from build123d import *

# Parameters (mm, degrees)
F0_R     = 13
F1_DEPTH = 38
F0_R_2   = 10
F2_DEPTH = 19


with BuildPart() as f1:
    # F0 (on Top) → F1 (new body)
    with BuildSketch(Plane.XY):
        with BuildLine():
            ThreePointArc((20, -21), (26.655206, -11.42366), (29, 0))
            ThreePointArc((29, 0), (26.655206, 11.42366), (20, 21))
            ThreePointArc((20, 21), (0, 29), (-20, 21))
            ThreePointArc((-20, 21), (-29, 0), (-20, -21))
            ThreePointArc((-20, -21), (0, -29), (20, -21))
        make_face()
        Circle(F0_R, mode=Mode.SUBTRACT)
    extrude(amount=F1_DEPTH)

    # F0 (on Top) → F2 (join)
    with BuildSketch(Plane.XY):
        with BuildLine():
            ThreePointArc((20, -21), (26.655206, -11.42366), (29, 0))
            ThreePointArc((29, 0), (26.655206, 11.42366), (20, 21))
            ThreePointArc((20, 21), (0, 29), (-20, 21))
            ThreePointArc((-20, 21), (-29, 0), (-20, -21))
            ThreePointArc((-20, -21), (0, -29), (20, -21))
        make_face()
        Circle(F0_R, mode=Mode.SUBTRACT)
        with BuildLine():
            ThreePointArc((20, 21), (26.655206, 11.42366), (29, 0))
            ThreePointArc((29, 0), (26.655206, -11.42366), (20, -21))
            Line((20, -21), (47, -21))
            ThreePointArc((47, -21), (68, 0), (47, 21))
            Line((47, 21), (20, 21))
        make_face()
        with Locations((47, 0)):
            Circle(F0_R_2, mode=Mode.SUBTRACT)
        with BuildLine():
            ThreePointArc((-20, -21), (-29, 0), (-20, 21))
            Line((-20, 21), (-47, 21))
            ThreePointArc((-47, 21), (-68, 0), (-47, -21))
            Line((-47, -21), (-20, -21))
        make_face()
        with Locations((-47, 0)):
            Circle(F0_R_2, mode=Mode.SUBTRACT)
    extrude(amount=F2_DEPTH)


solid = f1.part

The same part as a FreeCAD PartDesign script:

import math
import FreeCAD as App
import Part
import Sketcher

V = App.Vector

doc = App.newDocument("Part")
body = doc.addObject("PartDesign::Body", "Body")

sketch1 = doc.addObject("Sketcher::SketchObject", "Sketch")
body.addObject(sketch1)
sketch1.AttachmentSupport = (doc.XY_Plane, [""])
sketch1.MapMode = "FlatFace"
sketch1.addGeometry(Part.ArcOfCircle(Part.Circle(V(0, 0, 0), V(0, 0, 1), 29), math.radians(-46), math.radians(0)), False)
sketch1.addGeometry(Part.ArcOfCircle(Part.Circle(V(0, 0, 0), V(0, 0, 1), 29), math.radians(0), math.radians(46)), False)
sketch1.addGeometry(Part.ArcOfCircle(Part.Circle(V(0, 0, 0), V(0, 0, 1), 29), math.radians(46), math.radians(314)), False)
sketch1.addGeometry(Part.Circle(V(0, 0, 0), V(0, 0, 1), 13), False)
sketch1.addConstraint(Sketcher.Constraint("Tangent", 0, 2, 1, 1))
sketch1.addConstraint(Sketcher.Constraint("Tangent", 1, 2, 2, 1))
sketch1.addConstraint(Sketcher.Constraint("Tangent", 2, 2, 0, 1))
sketch1.addConstraint(Sketcher.Constraint("Coincident", 0, 3, -1, 1))
sketch1.addConstraint(Sketcher.Constraint("Coincident", 3, 3, -1, 1))
sketch1.addConstraint(Sketcher.Constraint("PointOnObject", 0, 2, -1))
sketch1.addConstraint(Sketcher.Constraint("Vertical", 1, 2, 2, 2))
sketch1.addConstraint(Sketcher.Constraint("Diameter", 3, 26.0))
sketch1.addConstraint(Sketcher.Constraint("Radius", 2, 29.0))
sketch1.addConstraint(Sketcher.Constraint("DistanceX", -1, 1, 1, 2, 20.0))
pad1 = doc.addObject("PartDesign::Pad", "Pad")
body.addObject(pad1)
pad1.Profile = sketch1
pad1.Length = 38

sketch2 = doc.addObject("Sketcher::SketchObject", "Sketch001")
body.addObject(sketch2)
sketch2.AttachmentSupport = (doc.XY_Plane, [""])
sketch2.MapMode = "FlatFace"
sketch2.addGeometry(Part.ArcOfCircle(Part.Circle(V(0, 0, 0), V(0, 0, 1), 29), math.radians(46), math.radians(134)), False)
sketch2.addGeometry(Part.LineSegment(V(-20, 21, 0), V(-47, 21, 0)), False)
sketch2.addGeometry(Part.ArcOfCircle(Part.Circle(V(-47, 0, 0), V(0, 0, 1), 21), math.radians(90), math.radians(270)), False)
sketch2.addGeometry(Part.LineSegment(V(-47, -21, 0), V(-20, -21, 0)), False)
sketch2.addGeometry(Part.ArcOfCircle(Part.Circle(V(0, 0, 0), V(0, 0, 1), 29), math.radians(-134), math.radians(-46)), False)
sketch2.addGeometry(Part.LineSegment(V(20, -21, 0), V(47, -21, 0)), False)
sketch2.addGeometry(Part.ArcOfCircle(Part.Circle(V(47, 0, 0), V(0, 0, 1), 21), math.radians(-90), math.radians(90)), False)
sketch2.addGeometry(Part.LineSegment(V(47, 21, 0), V(20, 21, 0)), False)
sketch2.addGeometry(Part.Circle(V(-47, 0, 0), V(0, 0, 1), 10), False)
sketch2.addGeometry(Part.Circle(V(0, 0, 0), V(0, 0, 1), 13), False)
sketch2.addGeometry(Part.Circle(V(47, 0, 0), V(0, 0, 1), 10), False)
sketch2.addConstraint(Sketcher.Constraint("Coincident", 0, 2, 1, 1))
sketch2.addConstraint(Sketcher.Constraint("Tangent", 1, 2, 2, 1))
sketch2.addConstraint(Sketcher.Constraint("Tangent", 2, 2, 3, 1))
sketch2.addConstraint(Sketcher.Constraint("Coincident", 3, 2, 4, 1))
sketch2.addConstraint(Sketcher.Constraint("Coincident", 4, 2, 5, 1))
sketch2.addConstraint(Sketcher.Constraint("Tangent", 5, 2, 6, 1))
sketch2.addConstraint(Sketcher.Constraint("Tangent", 6, 2, 7, 1))
sketch2.addConstraint(Sketcher.Constraint("Coincident", 7, 2, 0, 1))
sketch2.addConstraint(Sketcher.Constraint("Horizontal", 1))
sketch2.addConstraint(Sketcher.Constraint("Horizontal", 3))
sketch2.addConstraint(Sketcher.Constraint("Horizontal", 5))
sketch2.addConstraint(Sketcher.Constraint("Horizontal", 7))
sketch2.addConstraint(Sketcher.Constraint("Coincident", 0, 3, -1, 1))
sketch2.addConstraint(Sketcher.Constraint("Coincident", 4, 3, -1, 1))
sketch2.addConstraint(Sketcher.Constraint("Coincident", 9, 3, -1, 1))
sketch2.addConstraint(Sketcher.Constraint("Coincident", 8, 3, 2, 3))
sketch2.addConstraint(Sketcher.Constraint("Coincident", 10, 3, 6, 3))
sketch2.addConstraint(Sketcher.Constraint("Equal", 0, 4))
sketch2.addConstraint(Sketcher.Constraint("Equal", 2, 6))
sketch2.addConstraint(Sketcher.Constraint("Equal", 8, 10))
sketch2.addConstraint(Sketcher.Constraint("Symmetric", 2, 3, 6, 3, -1, 1))
sketch2.addConstraint(Sketcher.Constraint("PointOnObject", 2, 3, -1))
sketch2.addConstraint(Sketcher.Constraint("Diameter", 8, 20.0))
sketch2.addConstraint(Sketcher.Constraint("Diameter", 9, 26.0))
sketch2.addConstraint(Sketcher.Constraint("Radius", 0, 29.0))
sketch2.addConstraint(Sketcher.Constraint("Radius", 2, 21.0))
sketch2.addConstraint(Sketcher.Constraint("DistanceX", 1, 2, 1, 1, 27.0))
pad2 = doc.addObject("PartDesign::Pad", "Pad001")
body.addObject(pad2)
pad2.Profile = sketch2
pad2.Length = 19

doc.recompute()
